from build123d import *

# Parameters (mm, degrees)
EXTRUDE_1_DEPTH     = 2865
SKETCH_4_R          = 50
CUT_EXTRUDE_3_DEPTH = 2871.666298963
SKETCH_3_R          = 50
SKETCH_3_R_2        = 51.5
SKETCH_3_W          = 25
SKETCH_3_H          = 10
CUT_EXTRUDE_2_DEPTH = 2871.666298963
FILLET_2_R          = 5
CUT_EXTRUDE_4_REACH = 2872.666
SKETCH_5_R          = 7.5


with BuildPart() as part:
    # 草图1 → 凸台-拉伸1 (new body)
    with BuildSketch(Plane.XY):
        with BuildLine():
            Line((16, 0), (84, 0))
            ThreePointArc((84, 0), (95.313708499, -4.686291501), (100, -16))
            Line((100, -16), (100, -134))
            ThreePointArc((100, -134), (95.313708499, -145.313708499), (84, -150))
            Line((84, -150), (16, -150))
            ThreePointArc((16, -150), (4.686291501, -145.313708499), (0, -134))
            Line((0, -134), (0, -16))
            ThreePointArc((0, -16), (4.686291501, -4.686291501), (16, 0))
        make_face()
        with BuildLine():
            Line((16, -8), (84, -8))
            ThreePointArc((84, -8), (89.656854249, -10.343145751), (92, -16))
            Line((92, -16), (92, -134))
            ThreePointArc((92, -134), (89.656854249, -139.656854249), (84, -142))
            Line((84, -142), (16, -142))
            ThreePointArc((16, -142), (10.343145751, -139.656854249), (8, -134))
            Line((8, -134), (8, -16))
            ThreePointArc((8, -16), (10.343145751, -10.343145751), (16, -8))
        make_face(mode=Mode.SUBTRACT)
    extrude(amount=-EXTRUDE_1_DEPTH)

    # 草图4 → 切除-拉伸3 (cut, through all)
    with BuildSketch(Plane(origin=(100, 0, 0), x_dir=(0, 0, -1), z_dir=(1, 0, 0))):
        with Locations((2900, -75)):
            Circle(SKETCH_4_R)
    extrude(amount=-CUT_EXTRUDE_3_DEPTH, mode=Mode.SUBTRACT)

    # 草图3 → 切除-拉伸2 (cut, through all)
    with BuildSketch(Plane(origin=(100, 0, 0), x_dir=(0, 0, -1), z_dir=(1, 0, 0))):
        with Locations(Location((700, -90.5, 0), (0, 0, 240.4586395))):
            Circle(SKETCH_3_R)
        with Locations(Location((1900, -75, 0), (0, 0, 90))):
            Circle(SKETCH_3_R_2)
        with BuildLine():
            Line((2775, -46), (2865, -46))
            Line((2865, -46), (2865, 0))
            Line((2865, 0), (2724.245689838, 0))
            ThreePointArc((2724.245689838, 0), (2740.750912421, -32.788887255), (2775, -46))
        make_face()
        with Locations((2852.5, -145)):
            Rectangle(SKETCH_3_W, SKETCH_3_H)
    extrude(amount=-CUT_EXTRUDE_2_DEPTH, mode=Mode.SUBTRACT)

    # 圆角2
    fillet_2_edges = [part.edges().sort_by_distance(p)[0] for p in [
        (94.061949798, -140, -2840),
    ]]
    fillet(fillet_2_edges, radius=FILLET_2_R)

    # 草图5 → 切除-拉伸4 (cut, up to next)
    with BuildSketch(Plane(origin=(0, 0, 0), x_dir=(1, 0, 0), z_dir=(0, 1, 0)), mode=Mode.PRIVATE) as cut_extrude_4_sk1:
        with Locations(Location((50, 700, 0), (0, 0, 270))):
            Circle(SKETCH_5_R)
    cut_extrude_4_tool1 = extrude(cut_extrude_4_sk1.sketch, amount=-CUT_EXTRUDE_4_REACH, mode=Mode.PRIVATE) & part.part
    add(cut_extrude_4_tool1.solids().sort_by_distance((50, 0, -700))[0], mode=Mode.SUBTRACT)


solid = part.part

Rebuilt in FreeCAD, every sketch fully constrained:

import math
import FreeCAD as App
import Part
import Sketcher

V = App.Vector
Q = App.Units.Quantity


def edges_at(feature, points):
    """Names of the edges that pass closest to the given points."""
    edges = feature.Shape.Edges
    near = lambda p: min(range(len(edges)), key=lambda i: edges[i].distToShape(Part.Vertex(*p))[0])
    return sorted({f"Edge{near(p) + 1}" for p in points})

doc = App.newDocument("Part")
body = doc.addObject("PartDesign::Body", "Body")

# Sketch on XY plane
sketch1 = body.newObject("Sketcher::SketchObject", "Sketch")
sketch1.AttachmentSupport = (doc.getObject("XY_Plane"), [""])
sketch1.MapMode = "FlatFace"
sketch1.addGeometry(Part.LineSegment(V(84, 0, 0), V(16, 0, 0)), False)
sketch1.addGeometry(Part.ArcOfCircle(Part.Circle(V(16, -16, 0), V(0, 0, 1), 16), math.radians(90), math.radians(180)), False)
sketch1.addGeometry(Part.LineSegment(V(0, -16, 0), V(0, -134, 0)), False)
sketch1.addGeometry(Part.ArcOfCircle(Part.Circle(V(16, -134, 0), V(0, 0, 1), 16), math.radians(180), math.radians(270)), False)
sketch1.addGeometry(Part.LineSegment(V(16, -150, 0), V(84, -150, 0)), False)
sketch1.addGeometry(Part.ArcOfCircle(Part.Circle(V(84, -134, 0), V(0, 0, 1), 16), math.radians(-90), math.radians(0)), False)
sketch1.addGeometry(Part.LineSegment(V(100, -134, 0), V(100, -16, 0)), False)
sketch1.addGeometry(Part.ArcOfCircle(Part.Circle(V(84, -16, 0), V(0, 0, 1), 16), math.radians(0), math.radians(90)), False)
sketch1.addGeometry(Part.LineSegment(V(16, -8, 0), V(84, -8, 0)), False)
sketch1.addGeometry(Part.ArcOfCircle(Part.Circle(V(84, -16, 0), V(0, 0, 1), 8), math.radians(0), math.radians(90)), False)
sketch1.addGeometry(Part.LineSegment(V(92, -16, 0), V(92, -134, 0)), False)
sketch1.addGeometry(Part.ArcOfCircle(Part.Circle(V(84, -134, 0), V(0, 0, 1), 8), math.radians(-90), math.radians(0)), False)
sketch1.addGeometry(Part.LineSegment(V(84, -142, 0), V(16, -142, 0)), False)
sketch1.addGeometry(Part.ArcOfCircle(Part.Circle(V(16, -134, 0), V(0, 0, 1), 8), math.radians(-180), math.radians(-90)), False)
sketch1.addGeometry(Part.LineSegment(V(8, -134, 0), V(8, -16, 0)), False)
sketch1.addGeometry(Part.ArcOfCircle(Part.Circle(V(16, -16, 0), V(0, 0, 1), 8), math.radians(90), math.radians(180)), False)
sketch1.addConstraint(Sketcher.Constraint("Tangent", 0, 2, 1, 1))
sketch1.addConstraint(Sketcher.Constraint("Tangent", 1, 2, 2, 1))
sketch1.addConstraint(Sketcher.Constraint("Tangent", 2, 2, 3, 1))
sketch1.addConstraint(Sketcher.Constraint("Tangent", 3, 2, 4, 1))
sketch1.addConstraint(Sketcher.Constraint("Tangent", 4, 2, 5, 1))
sketch1.addConstraint(Sketcher.Constraint("Tangent", 5, 2, 6, 1))
sketch1.addConstraint(Sketcher.Constraint("Tangent", 6, 2, 7, 1))
sketch1.addConstraint(Sketcher.Constraint("Tangent", 7, 2, 0, 1))
sketch1.addConstraint(Sketcher.Constraint("Tangent", 8, 2, 9, 2))
sketch1.addConstraint(Sketcher.Constraint("Tangent", 9, 1, 10, 1))
sketch1.addConstraint(Sketcher.Constraint("Tangent", 10, 2, 11, 2))
sketch1.addConstraint(Sketcher.Constraint("Tangent", 11, 1, 12, 1))
sketch1.addConstraint(Sketcher.Constraint("Tangent", 12, 2, 13, 2))
sketch1.addConstraint(Sketcher.Constraint("Tangent", 13, 1, 14, 1))
sketch1.addConstraint(Sketcher.Constraint("Tangent", 14, 2, 15, 2))
sketch1.addConstraint(Sketcher.Constraint("Tangent", 15, 1, 8, 1))
sketch1.addConstraint(Sketcher.Constraint("Horizontal", 0))
sketch1.addConstraint(Sketcher.Constraint("Vertical", 2))
sketch1.addConstraint(Sketcher.Constraint("Horizontal", 4))
sketch1.addConstraint(Sketcher.Constraint("Vertical", 6))
sketch1.addConstraint(Sketcher.Constraint("Horizontal", 8))
sketch1.addConstraint(Sketcher.Constraint("Vertical", 10))
sketch1.addConstraint(Sketcher.Constraint("Horizontal", 12))
sketch1.addConstraint(Sketcher.Constraint("Vertical", 14))
sketch1.addConstraint(Sketcher.Constraint("Coincident", 9, 3, 7, 3))
sketch1.addConstraint(Sketcher.Constraint("Coincident", 11, 3, 5, 3))
sketch1.addConstraint(Sketcher.Constraint("Coincident", 13, 3, 3, 3))
sketch1.addConstraint(Sketcher.Constraint("Equal", 1, 3))
sketch1.addConstraint(Sketcher.Constraint("Equal", 3, 5))
sketch1.addConstraint(Sketcher.Constraint("Equal", 5, 7))
sketch1.addConstraint(Sketcher.Constraint("Equal", 13, 15))
sketch1.addConstraint(Sketcher.Constraint("PointOnObject", 0, 2, -1))
sketch1.addConstraint(Sketcher.Constraint("PointOnObject", 1, 2, -2))
sketch1.addConstraint(Sketcher.Constraint("Radius", 1, Q("16 mm")))
sketch1.addConstraint(Sketcher.Constraint("Radius", 9, Q("8 mm")))
sketch1.addConstraint(Sketcher.Constraint("DistanceX", 0, 2, 0, 1, Q("68 mm")))
sketch1.addConstraint(Sketcher.Constraint("DistanceY", 2, 2, 2, 1, Q("118 mm")))
pad1 = body.newObject("PartDesign::Pad", "Pad")
pad1.Profile = sketch1
pad1.Length = 2865
pad1.Reversed = True

# Sketch on YZ plane
sketch2 = body.newObject("Sketcher::SketchObject", "Sketch001")
sketch2.AttachmentSupport = (doc.getObject("YZ_Plane"), [""])
sketch2.MapMode = "FlatFace"
sketch2.AttachmentOffset = App.Placement(V(0, 0, 100), App.Rotation())
sketch2.addGeometry(Part.Circle(V(-75, -2900, 0), V(0, 0, 1), 50), False)
sketch2.addConstraint(Sketcher.Constraint("Diameter", 0, Q("100 mm")))
sketch2.addConstraint(Sketcher.Constraint("DistanceX", 0, 3, -1, 1, Q("75 mm")))
sketch2.addConstraint(Sketcher.Constraint("DistanceY", 0, 3, -1, 1, Q("2900 mm")))
pocket1 = body.newObject("PartDesign::Pocket", "Pocket")
pocket1.Profile = sketch2
pocket1.Type = "ThroughAll"

# Sketch on YZ plane
sketch3 = body.newObject("Sketcher::SketchObject", "Sketch002")
sketch3.AttachmentSupport = (doc.getObject("YZ_Plane"), [""])
sketch3.MapMode = "FlatFace"
sketch3.AttachmentOffset = App.Placement(V(0, 0, 100), App.Rotation())
sketch3.addGeometry(Part.Circle(V(-90, -700, 0), V(0, 0, 1), 50), False)
sketch3.addGeometry(Part.Circle(V(-75, -1900, 0), V(0, 0, 1), 52), False)
sketch3.addGeometry(Part.LineSegment(V(-46, -2775, 0), V(-46, -2865, 0)), False)
sketch3.addGeometry(Part.LineSegment(V(-46, -2865, 0), V(0, -2865, 0)), False)
sketch3.addGeometry(Part.LineSegment(V(0, -2865, 0), V(0, -2724, 0)), False)
sketch3.addGeometry(Part.ArcOfCircle(Part.Circle(V(5, -2775, 0), V(0, 0, 1), 51), math.radians(96), math.radians(180)), False)
sketch3.addGeometry(Part.LineSegment(V(-140, -2840, 0), V(-150, -2840, 0)), False)
sketch3.addGeometry(Part.LineSegment(V(-150, -2840, 0), V(-150, -2865, 0)), False)
sketch3.addGeometry(Part.LineSegment(V(-150, -2865, 0), V(-140, -2865, 0)), False)
sketch3.addGeometry(Part.LineSegment(V(-140, -2865, 0), V(-140, -2840, 0)), False)
sketch3.addConstraint(Sketcher.Constraint("Coincident", 2, 2, 3, 1))
sketch3.addConstraint(Sketcher.Constraint("Coincident", 3, 2, 4, 1))
sketch3.addConstraint(Sketcher.Constraint("Coincident", 4, 2, 5, 1))
sketch3.addConstraint(Sketcher.Constraint("Tangent", 5, 2, 2, 1))
sketch3.addConstraint(Sketcher.Constraint("Coincident", 6, 2, 7, 1))
sketch3.addConstraint(Sketcher.Constraint("Coincident", 7, 2, 8, 1))
sketch3.addConstraint(Sketcher.Constraint("Coincident", 8, 2, 9, 1))
sketch3.addConstraint(Sketcher.Constraint("Coincident", 9, 2, 6, 1))
sketch3.addConstraint(Sketcher.Constraint("Vertical", 2))
sketch3.addConstraint(Sketcher.Constraint("Horizontal", 3))
sketch3.addConstraint(Sketcher.Constraint("Vertical", 4))
sketch3.addConstraint(Sketcher.Constraint("Horizontal", 6))
sketch3.addConstraint(Sketcher.Constraint("Vertical", 7))
sketch3.addConstraint(Sketcher.Constraint("Horizontal", 8))
sketch3.addConstraint(Sketcher.Constraint("Vertical", 9))
sketch3.addConstraint(Sketcher.Constraint("PointOnObject", 3, 2, -2))
sketch3.addConstraint(Sketcher.Constraint("Horizontal", 3, 2, 7, 2))
sketch3.addConstraint(Sketcher.Constraint("Diameter", 0, Q("100 mm")))
sketch3.addConstraint(Sketcher.Constraint("Diameter", 1, Q("103 mm")))
sketch3.addConstraint(Sketcher.Constraint("Radius", 5, Q("51 mm")))
sketch3.addConstraint(Sketcher.Constraint("DistanceX", 3, 1, 3, 2, Q("46 mm")))
sketch3.addConstraint(Sketcher.Constraint("DistanceX", 6, 2, 6, 1, Q("10 mm")))
sketch3.addConstraint(Sketcher.Constraint("DistanceY", 2, 2, 2, 1, Q("90 mm")))
sketch3.addConstraint(Sketcher.Constraint("DistanceY", 7, 2, 7, 1, Q("25 mm")))
sketch3.addConstraint(Sketcher.Constraint("DistanceY", 0, 3, -1, 1, Q("700 mm")))
sketch3.addConstraint(Sketcher.Constraint("DistanceX", 1, 3, -1, 1, Q("75 mm")))
sketch3.addConstraint(Sketcher.Constraint("DistanceY", 1, 3, -1, 1, Q("1900 mm")))
sketch3.addConstraint(Sketcher.Constraint("DistanceY", 5, 3, -1, 1, Q("2775 mm")))
sketch3.addConstraint(Sketcher.Constraint("DistanceX", 6, 2, -1, 1, Q("150 mm")))
sketch3.addConstraint(Sketcher.Constraint("DistanceX", 0, 3, -1, 1, Q("90.5 mm")))
pocket2 = body.newObject("PartDesign::Pocket", "Pocket001")
pocket2.Profile = sketch3
pocket2.Type = "ThroughAll"
doc.recompute()

fillet = body.newObject("PartDesign::Fillet", "Fillet")
fillet.Base = (pocket2, edges_at(pocket2, [(94.062, -140, -2840)]))
fillet.Radius = 5

# Sketch on XZ plane
sketch4 = body.newObject("Sketcher::SketchObject", "Sketch003")
sketch4.AttachmentSupport = (doc.getObject("XZ_Plane"), [""])
sketch4.MapMode = "FlatFace"
sketch4.addGeometry(Part.Circle(V(50, -700, 0), V(0, 0, 1), 8), False)
sketch4.addConstraint(Sketcher.Constraint("Diameter", 0, Q("15 mm")))
sketch4.addConstraint(Sketcher.Constraint("DistanceX", -1, 1, 0, 3, Q("50 mm")))
sketch4.addConstraint(Sketcher.Constraint("DistanceY", 0, 3, -1, 1, Q("700 mm")))
pocket3 = body.newObject("PartDesign::Pocket", "Pocket002")
pocket3.Profile = sketch4
pocket3.Type = "UpToFirst"
pocket3.Reversed = True

doc.recompute()
